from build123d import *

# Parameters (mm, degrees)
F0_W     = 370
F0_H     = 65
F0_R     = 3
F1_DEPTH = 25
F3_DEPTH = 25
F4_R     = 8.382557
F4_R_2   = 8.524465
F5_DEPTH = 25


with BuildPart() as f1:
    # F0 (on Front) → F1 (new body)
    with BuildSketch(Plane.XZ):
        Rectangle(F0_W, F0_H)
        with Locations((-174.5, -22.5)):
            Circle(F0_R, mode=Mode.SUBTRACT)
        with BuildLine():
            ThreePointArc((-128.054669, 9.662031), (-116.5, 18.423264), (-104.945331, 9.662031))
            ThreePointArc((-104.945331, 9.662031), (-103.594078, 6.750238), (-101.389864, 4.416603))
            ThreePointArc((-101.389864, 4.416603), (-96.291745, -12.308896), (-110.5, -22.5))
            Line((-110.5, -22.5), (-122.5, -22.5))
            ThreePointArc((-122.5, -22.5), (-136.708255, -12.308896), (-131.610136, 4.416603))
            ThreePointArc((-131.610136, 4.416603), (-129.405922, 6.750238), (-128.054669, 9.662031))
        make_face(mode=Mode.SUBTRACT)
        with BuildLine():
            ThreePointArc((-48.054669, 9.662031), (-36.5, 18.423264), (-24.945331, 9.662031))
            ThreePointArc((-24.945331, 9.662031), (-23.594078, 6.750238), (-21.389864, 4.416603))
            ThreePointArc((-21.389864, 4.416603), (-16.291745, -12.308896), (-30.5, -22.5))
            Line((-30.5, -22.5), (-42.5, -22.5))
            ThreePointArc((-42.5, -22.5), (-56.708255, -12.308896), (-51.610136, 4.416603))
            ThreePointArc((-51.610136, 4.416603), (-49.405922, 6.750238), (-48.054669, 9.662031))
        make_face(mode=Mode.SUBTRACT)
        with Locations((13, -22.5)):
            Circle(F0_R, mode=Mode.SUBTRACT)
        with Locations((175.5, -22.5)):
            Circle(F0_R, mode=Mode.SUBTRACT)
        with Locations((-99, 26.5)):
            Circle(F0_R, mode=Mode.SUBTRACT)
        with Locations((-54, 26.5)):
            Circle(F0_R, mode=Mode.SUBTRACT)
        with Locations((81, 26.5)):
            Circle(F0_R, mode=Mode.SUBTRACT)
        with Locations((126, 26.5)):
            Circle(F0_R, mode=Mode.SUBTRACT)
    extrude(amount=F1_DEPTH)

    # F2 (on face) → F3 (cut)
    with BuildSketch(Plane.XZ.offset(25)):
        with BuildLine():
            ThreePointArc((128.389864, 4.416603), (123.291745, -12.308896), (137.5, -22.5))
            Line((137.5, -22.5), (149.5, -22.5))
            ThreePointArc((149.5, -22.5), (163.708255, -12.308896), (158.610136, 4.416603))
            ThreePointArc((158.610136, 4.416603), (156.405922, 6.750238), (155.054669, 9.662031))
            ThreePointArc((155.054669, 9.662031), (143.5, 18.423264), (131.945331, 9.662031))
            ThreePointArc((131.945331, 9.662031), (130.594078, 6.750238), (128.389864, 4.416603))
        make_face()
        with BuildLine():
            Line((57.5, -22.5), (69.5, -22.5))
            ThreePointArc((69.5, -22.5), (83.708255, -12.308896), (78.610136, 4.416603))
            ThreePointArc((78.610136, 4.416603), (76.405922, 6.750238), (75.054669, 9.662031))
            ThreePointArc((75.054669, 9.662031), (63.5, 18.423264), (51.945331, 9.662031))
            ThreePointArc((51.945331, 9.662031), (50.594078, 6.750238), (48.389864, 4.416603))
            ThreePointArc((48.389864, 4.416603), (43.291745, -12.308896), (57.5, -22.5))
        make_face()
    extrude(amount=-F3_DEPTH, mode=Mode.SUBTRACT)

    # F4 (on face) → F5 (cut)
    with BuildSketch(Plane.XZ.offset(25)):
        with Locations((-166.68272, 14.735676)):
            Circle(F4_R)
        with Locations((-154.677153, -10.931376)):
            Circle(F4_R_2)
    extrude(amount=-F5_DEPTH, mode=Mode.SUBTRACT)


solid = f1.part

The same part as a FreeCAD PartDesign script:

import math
import FreeCAD as App
import Part
import Sketcher

V = App.Vector
Q = App.Units.Quantity


def add_polygon(sketch, points):
    """Adds a closed chain of lines whose ends are joined by coincident constraints."""
    first, n = sketch.GeometryCount, len(points)
    for a, b in zip(points, points[1:] + points[:1]):
        sketch.addGeometry(Part.LineSegment(App.Vector(*a, 0), App.Vector(*b, 0)), False)
    for i in range(n):
        sketch.addConstraint(Sketcher.Constraint("Coincident", first + i, 2, first + (i + 1) % n, 1))

doc = App.newDocument("Part")
params = doc.addObject("Spreadsheet::Sheet", "Params")
for row, (alias, value) in enumerate([
    ("sketch1_diameter", "6 mm"),
    ("sketch1_radius", "11.999999 mm"),
    ("sketch1_radius2", "15 mm"),
    ("sketch1_width", "370 mm"),
    ("sketch1_width2", "12 mm"),
    ("pad1_length", "25 mm"),
    ("sketch2_radius", "15 mm"),
    ("sketch2_radius2", "11.999999 mm"),
    ("sketch2_width", "12 mm"),
    ("pocket1_length", "25 mm"),
    ("pocket2_length", "25 mm"),
], start=1):
    params.set(f"A{row}", alias)
    params.set(f"B{row}", "=" + value)
    params.setAlias(f"B{row}", alias)

body = doc.addObject("PartDesign::Body", "Body")

# Sketch on XZ plane
sketch1 = body.newObject("Sketcher::SketchObject", "Sketch")
sketch1.AttachmentSupport = (doc.getObject("XZ_Plane"), [""])
sketch1.MapMode = "FlatFace"
add_polygon(sketch1, [(-185, 32.5), (-185, -32.5), (185, -32.5), (185, 32.5)])  # lines 0-3
sketch1.addGeometry(Part.Circle(V(-174.5, -22.5, 0), V(0, 0, 1), 3), False)  # 4
sketch1.addGeometry(Part.ArcOfCircle(Part.Circle(V(-137.7, 12.4, 0), V(0, 0, 1), 10), math.radians(-53), math.radians(-16)), False)  # 5
sketch1.addGeometry(Part.ArcOfCircle(Part.Circle(V(-116.5, 6.4, 0), V(0, 0, 1), 12), math.radians(16), math.radians(164)), False)  # 6
sketch1.addGeometry(Part.ArcOfCircle(Part.Circle(V(-95.3, 12.4, 0), V(0, 0, 1), 10), math.radians(-164), math.radians(-127)), False)  # 7
sketch1.addGeometry(Part.ArcOfCircle(Part.Circle(V(-110.5, -7.5, 0), V(0, 0, 1), 15), math.radians(-90), math.radians(53)), False)  # 8
sketch1.addGeometry(Part.LineSegment(V(-110.5, -22.5, 0), V(-122.5, -22.5, 0)), False)  # 9
sketch1.addGeometry(Part.ArcOfCircle(Part.Circle(V(-122.5, -7.5, 0), V(0, 0, 1), 15), math.radians(127), math.radians(270)), False)  # 10
sketch1.addGeometry(Part.ArcOfCircle(Part.Circle(V(-57.7, 12.4, 0), V(0, 0, 1), 10), math.radians(-53), math.radians(-16)), False)  # 11
sketch1.addGeometry(Part.ArcOfCircle(Part.Circle(V(-36.5, 6.4, 0), V(0, 0, 1), 12), math.radians(16), math.radians(164)), False)  # 12
sketch1.addGeometry(Part.ArcOfCircle(Part.Circle(V(-15.3, 12.4, 0), V(0, 0, 1), 10), math.radians(-164), math.radians(-127)), False)  # 13
sketch1.addGeometry(Part.ArcOfCircle(Part.Circle(V(-30.5, -7.5, 0), V(0, 0, 1), 15), math.radians(-90), math.radians(53)), False)  # 14
sketch1.addGeometry(Part.LineSegment(V(-30.5, -22.5, 0), V(-42.5, -22.5, 0)), False)  # 15
sketch1.addGeometry(Part.ArcOfCircle(Part.Circle(V(-42.5, -7.5, 0), V(0, 0, 1), 15), math.radians(127), math.radians(270)), False)  # 16
sketch1.addGeometry(Part.Circle(V(13, -22.5, 0), V(0, 0, 1), 3), False)  # 17
sketch1.addGeometry(Part.Circle(V(175.5, -22.5, 0), V(0, 0, 1), 3), False)  # 18
sketch1.addGeometry(Part.Circle(V(-99, 26.5, 0), V(0, 0, 1), 3), False)  # 19
sketch1.addGeometry(Part.Circle(V(-54, 26.5, 0), V(0, 0, 1), 3), False)  # 20
sketch1.addGeometry(Part.Circle(V(81, 26.5, 0), V(0, 0, 1), 3), False)  # 21
sketch1.addGeometry(Part.Circle(V(126, 26.5, 0), V(0, 0, 1), 3), False)  # 22
sketch1.addConstraint(Sketcher.Constraint("Tangent", 5, 2, 6, 2))
sketch1.addConstraint(Sketcher.Constraint("Tangent", 6, 1, 7, 1))
sketch1.addConstraint(Sketcher.Constraint("Tangent", 7, 2, 8, 2))
sketch1.addConstraint(Sketcher.Constraint("Tangent", 8, 1, 9, 1))
sketch1.addConstraint(Sketcher.Constraint("Tangent", 9, 2, 10, 2))
sketch1.addConstraint(Sketcher.Constraint("Tangent", 10, 1, 5, 1))
sketch1.addConstraint(Sketcher.Constraint("Tangent", 11, 2, 12, 2))
sketch1.addConstraint(Sketcher.Constraint("Tangent", 12, 1, 13, 1))
sketch1.addConstraint(Sketcher.Constraint("Tangent", 13, 2, 14, 2))
sketch1.addConstraint(Sketcher.Constraint("Tangent", 14, 1, 15, 1))
sketch1.addConstraint(Sketcher.Constraint("Tangent", 15, 2, 16, 2))
sketch1.addConstraint(Sketcher.Constraint("Tangent", 16, 1, 11, 1))
sketch1.addConstraint(Sketcher.Constraint("Vertical", 0))
sketch1.addConstraint(Sketcher.Constraint("Horizontal", 1))
sketch1.addConstraint(Sketcher.Constraint("Vertical", 2))
sketch1.addConstraint(Sketcher.Constraint("Horizontal", 3))
sketch1.addConstraint(Sketcher.Constraint("Horizontal", 9))
sketch1.addConstraint(Sketcher.Constraint("Horizontal", 15))
sketch1.addConstraint(Sketcher.Constraint("Equal", 5, 7))
sketch1.addConstraint(Sketcher.Constraint("Equal", 8, 10))
sketch1.addConstraint(Sketcher.Constraint("Equal", 7, 11))
sketch1.addConstraint(Sketcher.Constraint("Equal", 6, 12))
sketch1.addConstraint(Sketcher.Constraint("Equal", 11, 13))
sketch1.addConstraint(Sketcher.Constraint("Equal", 10, 14))
sketch1.addConstraint(Sketcher.Constraint("Equal", 14, 16))
sketch1.addConstraint(Sketcher.Constraint("Equal", 4, 17))
sketch1.addConstraint(Sketcher.Constraint("Equal", 17, 18))
sketch1.addConstraint(Sketcher.Constraint("Equal", 18, 19))
sketch1.addConstraint(Sketcher.Constraint("Equal", 19, 20))
sketch1.addConstraint(Sketcher.Constraint("Equal", 20, 21))
sketch1.addConstraint(Sketcher.Constraint("Equal", 21, 22))
sketch1.addConstraint(Sketcher.Constraint("Symmetric", 0, 2, 2, 2, -1, 1))
sketch1.addConstraint(Sketcher.Constraint("Horizontal", 5, 3, 7, 3))
sketch1.addConstraint(Sketcher.Constraint("Horizontal", 7, 3, 11, 3))
sketch1.addConstraint(Sketcher.Constraint("Horizontal", 6, 3, 12, 3))
sketch1.addConstraint(Sketcher.Constraint("Horizontal", 11, 3, 13, 3))
sketch1.addConstraint(Sketcher.Constraint("Horizontal", 10, 3, 14, 3))
sketch1.addConstraint(Sketcher.Constraint("Horizontal", 4, 3, 17, 3))
sketch1.addConstraint(Sketcher.Constraint("Horizontal", 17, 3, 18, 3))
sketch1.addConstraint(Sketcher.Constraint("Horizontal", 19, 3, 20, 3))
sketch1.addConstraint(Sketcher.Constraint("Horizontal", 20, 3, 21, 3))
sketch1.addConstraint(Sketcher.Constraint("Horizontal", 21, 3, 22, 3))
sketch1.addConstraint(Sketcher.Constraint("Horizontal", 18, 3, 8, 1))
sketch1.addConstraint(Sketcher.Constraint("Diameter", 4, Q("6 mm")))
sketch1.addConstraint(Sketcher.Constraint("Radius", 6, Q("11.999999 mm")))
sketch1.addConstraint(Sketcher.Constraint("Radius", 8, Q("15 mm")))
sketch1.addConstraint(Sketcher.Constraint("DistanceX", 1, 1, 1, 2, Q("370 mm")))
sketch1.addConstraint(Sketcher.Constraint("DistanceX", 9, 2, 9, 1, Q("12 mm")))
sketch1.addConstraint(Sketcher.Constraint("DistanceY", 0, 2, 0, 1, Q("65 mm")))
sketch1.addConstraint(Sketcher.Constraint("DistanceX", -1, 1, 17, 3, Q("13 mm")))
sketch1.addConstraint(Sketcher.Constraint("DistanceX", 19, 3, -1, 1, Q("99 mm")))
sketch1.addConstraint(Sketcher.Constraint("DistanceX", 20, 3, -1, 1, Q("54 mm")))
sketch1.addConstraint(Sketcher.Constraint("DistanceX", -1, 1, 21, 3, Q("81 mm")))
sketch1.addConstraint(Sketcher.Constraint("DistanceX", -1, 1, 22, 3, Q("126 mm")))
sketch1.addConstraint(Sketcher.Constraint("DistanceX", 4, 3, 6, 3, Q("58 mm")))
sketch1.addConstraint(Sketcher.Constraint("DistanceX", 5, 3, 11, 3, Q("80 mm")))
sketch1.addConstraint(Sketcher.Constraint("DistanceX", 14, 3, 18, 3, Q("206.000001 mm")))
sketch1.addConstraint(Sketcher.Constraint("DistanceY", 8, 3, 19, 3, Q("34 mm")))
sketch1.addConstraint(Sketcher.Constraint("DistanceY", 0, 2, 4, 3, Q("10 mm")))
sketch1.addConstraint(Sketcher.Constraint("DistanceX", 4, 3, -1, 1, Q("174.5 mm")))
sketch1.addConstraint(Sketcher.Constraint("Radius", 5, Q("10.000005 mm")))
sketch1.addConstraint(Sketcher.Constraint("DistanceX", 5, 2, -1, 1, Q("128.054669 mm")))
sketch1.setExpression("Constraints[47]", "Params.sketch1_diameter")
sketch1.setExpression("Constraints[48]", "Params.sketch1_radius")
sketch1.setExpression("Constraints[49]", "Params.sketch1_radius2")
sketch1.setExpression("Constraints[50]", "Params.sketch1_width")
sketch1.setExpression("Constraints[51]", "Params.sketch1_width2")
pad1 = body.newObject("PartDesign::Pad", "Pad")
pad1.Profile = sketch1
pad1.setExpression("Length", "Params.pad1_length")

# Sketch on XZ plane
sketch2 = body.newObject("Sketcher::SketchObject", "Sketch001")
sketch2.AttachmentSupport = (doc.getObject("XZ_Plane"), [""])
sketch2.MapMode = "FlatFace"
sketch2.AttachmentOffset = App.Placement(V(0, 0, 25), App.Rotation())
sketch2.addGeometry(Part.ArcOfCircle(Part.Circle(V(138, -7, 0), V(0, 0, 1), 15), math.radians(127), math.radians(270)), False)
sketch2.addGeometry(Part.LineSegment(V(138, -22, 0), V(150, -22, 0)), False)
sketch2.addGeometry(Part.ArcOfCircle(Part.Circle(V(149, -7, 0), V(0, 0, 1), 15), math.radians(-90), math.radians(53)), False)
sketch2.addGeometry(Part.ArcOfCircle(Part.Circle(V(165, 12, 0), V(0, 0, 1), 10), math.radians(-164), math.radians(-127)), False)
sketch2.addGeometry(Part.ArcOfCircle(Part.Circle(V(144, 6, 0), V(0, 0, 1), 12), math.radians(16), math.radians(164)), False)
sketch2.addGeometry(Part.ArcOfCircle(Part.Circle(V(122, 12, 0), V(0, 0, 1), 10), math.radians(-53), math.radians(-16)), False)
sketch2.addGeometry(Part.LineSegment(V(58, -22, 0), V(70, -22, 0)), False)
sketch2.addGeometry(Part.ArcOfCircle(Part.Circle(V(69, -7, 0), V(0, 0, 1), 15), math.radians(-90), math.radians(53)), False)
sketch2.addGeometry(Part.ArcOfCircle(Part.Circle(V(85, 12, 0), V(0, 0, 1), 10), math.radians(-164), math.radians(-127)), False)
sketch2.addGeometry(Part.ArcOfCircle(Part.Circle(V(64, 6, 0), V(0, 0, 1), 12), math.radians(16), math.radians(164)), False)
sketch2.addGeometry(Part.ArcOfCircle(Part.Circle(V(42, 12, 0), V(0, 0, 1), 10), math.radians(-53), math.radians(-16)), False)
sketch2.addGeometry(Part.ArcOfCircle(Part.Circle(V(58, -7, 0), V(0, 0, 1), 15), math.radians(127), math.radians(270)), False)
sketch2.addConstraint(Sketcher.Constraint("Tangent", 0, 2, 1, 1))
sketch2.addConstraint(Sketcher.Constraint("Tangent", 1, 2, 2, 1))
sketch2.addConstraint(Sketcher.Constraint("Tangent", 2, 2, 3, 2))
sketch2.addConstraint(Sketcher.Constraint("Tangent", 3, 1, 4, 1))
sketch2.addConstraint(Sketcher.Constraint("Tangent", 4, 2, 5, 2))
sketch2.addConstraint(Sketcher.Constraint("Tangent", 5, 1, 0, 1))
sketch2.addConstraint(Sketcher.Constraint("Tangent", 6, 2, 7, 1))
sketch2.addConstraint(Sketcher.Constraint("Tangent", 7, 2, 8, 2))
sketch2.addConstraint(Sketcher.Constraint("Tangent", 8, 1, 9, 1))
sketch2.addConstraint(Sketcher.Constraint("Tangent", 9, 2, 10, 2))
sketch2.addConstraint(Sketcher.Constraint("Tangent", 10, 1, 11, 1))
sketch2.addConstraint(Sketcher.Constraint("Tangent", 11, 2, 6, 1))
sketch2.addConstraint(Sketcher.Constraint("Horizontal", 1))
sketch2.addConstraint(Sketcher.Constraint("Horizontal", 6))
sketch2.addConstraint(Sketcher.Constraint("Equal", 0, 2))
sketch2.addConstraint(Sketcher.Constraint("Equal", 3, 5))
sketch2.addConstraint(Sketcher.Constraint("Equal", 2, 7))
sketch2.addConstraint(Sketcher.Constraint("Equal", 5, 8))
sketch2.addConstraint(Sketcher.Constraint("Equal", 4, 9))
sketch2.addConstraint(Sketcher.Constraint("Equal", 8, 10))
sketch2.addConstraint(Sketcher.Constraint("Equal", 7, 11))
sketch2.addConstraint(Sketcher.Constraint("Horizontal", 3, 3, 5, 3))
sketch2.addConstraint(Sketcher.Constraint("Horizontal", 2, 3, 7, 3))
sketch2.addConstraint(Sketcher.Constraint("Horizontal", 5, 3, 8, 3))
sketch2.addConstraint(Sketcher.Constraint("Horizontal", 4, 3, 9, 3))
sketch2.addConstraint(Sketcher.Constraint("Horizontal", 8, 3, 10, 3))
sketch2.addConstraint(Sketcher.Constraint("Radius", 0, Q("15 mm")))
sketch2.addConstraint(Sketcher.Constraint("Radius", 4, Q("11.999999 mm")))
sketch2.addConstraint(Sketcher.Constraint("DistanceX", 1, 1, 1, 2, Q("12 mm")))
sketch2.addConstraint(Sketcher.Constraint("DistanceX", 7, 3, 0, 3, Q("68.000001 mm")))
sketch2.addConstraint(Sketcher.Constraint("DistanceX", -1, 1, 0, 3, Q("137.500001 mm")))
sketch2.addConstraint(Sketcher.Constraint("DistanceY", 0, 3, -1, 1, Q("7.5 mm")))
sketch2.addConstraint(Sketcher.Constraint("Radius", 3, Q("10.000005 mm")))
sketch2.addConstraint(Sketcher.Constraint("DistanceX", -1, 1, 3, 1, Q("155.054669 mm")))
sketch2.setExpression("Constraints[26]", "Params.sketch2_radius")
sketch2.setExpression("Constraints[27]", "Params.sketch2_radius2")
sketch2.setExpression("Constraints[28]", "Params.sketch2_width")
pocket1 = body.newObject("PartDesign::Pocket", "Pocket")
pocket1.Profile = sketch2
pocket1.setExpression("Length", "Params.pocket1_length")

# Sketch on XZ plane
sketch3 = body.newObject("Sketcher::SketchObject", "Sketch002")
sketch3.AttachmentSupport = (doc.getObject("XZ_Plane"), [""])
sketch3.MapMode = "FlatFace"
sketch3.AttachmentOffset = App.Placement(V(0, 0, 25), App.Rotation())
sketch3.addGeometry(Part.Circle(V(-167, 15, 0), V(0, 0, 1), 8), False)
sketch3.addGeometry(Part.Circle(V(-155, -11, 0), V(0, 0, 1), 9), False)
sketch3.addConstraint(Sketcher.Constraint("Diameter", 1, Q("17.04893 mm")))
sketch3.addConstraint(Sketcher.Constraint("Diameter", 0, Q("16.765114 mm")))
sketch3.addConstraint(Sketcher.Constraint("DistanceX", 0, 3, -1, 1, Q("166.68272 mm")))
sketch3.addConstraint(Sketcher.Constraint("DistanceY", 1, 3, 0, 3, Q("25.667052 mm")))
sketch3.addConstraint(Sketcher.Constraint("DistanceY", -1, 1, 0, 3, Q("14.735676 mm")))
sketch3.addConstraint(Sketcher.Constraint("DistanceX", 1, 3, -1, 1, Q("154.677153 mm")))
pocket2 = body.newObject("PartDesign::Pocket", "Pocket001")
pocket2.Profile = sketch3
pocket2.setExpression("Length", "Params.pocket2_length")

doc.recompute()
